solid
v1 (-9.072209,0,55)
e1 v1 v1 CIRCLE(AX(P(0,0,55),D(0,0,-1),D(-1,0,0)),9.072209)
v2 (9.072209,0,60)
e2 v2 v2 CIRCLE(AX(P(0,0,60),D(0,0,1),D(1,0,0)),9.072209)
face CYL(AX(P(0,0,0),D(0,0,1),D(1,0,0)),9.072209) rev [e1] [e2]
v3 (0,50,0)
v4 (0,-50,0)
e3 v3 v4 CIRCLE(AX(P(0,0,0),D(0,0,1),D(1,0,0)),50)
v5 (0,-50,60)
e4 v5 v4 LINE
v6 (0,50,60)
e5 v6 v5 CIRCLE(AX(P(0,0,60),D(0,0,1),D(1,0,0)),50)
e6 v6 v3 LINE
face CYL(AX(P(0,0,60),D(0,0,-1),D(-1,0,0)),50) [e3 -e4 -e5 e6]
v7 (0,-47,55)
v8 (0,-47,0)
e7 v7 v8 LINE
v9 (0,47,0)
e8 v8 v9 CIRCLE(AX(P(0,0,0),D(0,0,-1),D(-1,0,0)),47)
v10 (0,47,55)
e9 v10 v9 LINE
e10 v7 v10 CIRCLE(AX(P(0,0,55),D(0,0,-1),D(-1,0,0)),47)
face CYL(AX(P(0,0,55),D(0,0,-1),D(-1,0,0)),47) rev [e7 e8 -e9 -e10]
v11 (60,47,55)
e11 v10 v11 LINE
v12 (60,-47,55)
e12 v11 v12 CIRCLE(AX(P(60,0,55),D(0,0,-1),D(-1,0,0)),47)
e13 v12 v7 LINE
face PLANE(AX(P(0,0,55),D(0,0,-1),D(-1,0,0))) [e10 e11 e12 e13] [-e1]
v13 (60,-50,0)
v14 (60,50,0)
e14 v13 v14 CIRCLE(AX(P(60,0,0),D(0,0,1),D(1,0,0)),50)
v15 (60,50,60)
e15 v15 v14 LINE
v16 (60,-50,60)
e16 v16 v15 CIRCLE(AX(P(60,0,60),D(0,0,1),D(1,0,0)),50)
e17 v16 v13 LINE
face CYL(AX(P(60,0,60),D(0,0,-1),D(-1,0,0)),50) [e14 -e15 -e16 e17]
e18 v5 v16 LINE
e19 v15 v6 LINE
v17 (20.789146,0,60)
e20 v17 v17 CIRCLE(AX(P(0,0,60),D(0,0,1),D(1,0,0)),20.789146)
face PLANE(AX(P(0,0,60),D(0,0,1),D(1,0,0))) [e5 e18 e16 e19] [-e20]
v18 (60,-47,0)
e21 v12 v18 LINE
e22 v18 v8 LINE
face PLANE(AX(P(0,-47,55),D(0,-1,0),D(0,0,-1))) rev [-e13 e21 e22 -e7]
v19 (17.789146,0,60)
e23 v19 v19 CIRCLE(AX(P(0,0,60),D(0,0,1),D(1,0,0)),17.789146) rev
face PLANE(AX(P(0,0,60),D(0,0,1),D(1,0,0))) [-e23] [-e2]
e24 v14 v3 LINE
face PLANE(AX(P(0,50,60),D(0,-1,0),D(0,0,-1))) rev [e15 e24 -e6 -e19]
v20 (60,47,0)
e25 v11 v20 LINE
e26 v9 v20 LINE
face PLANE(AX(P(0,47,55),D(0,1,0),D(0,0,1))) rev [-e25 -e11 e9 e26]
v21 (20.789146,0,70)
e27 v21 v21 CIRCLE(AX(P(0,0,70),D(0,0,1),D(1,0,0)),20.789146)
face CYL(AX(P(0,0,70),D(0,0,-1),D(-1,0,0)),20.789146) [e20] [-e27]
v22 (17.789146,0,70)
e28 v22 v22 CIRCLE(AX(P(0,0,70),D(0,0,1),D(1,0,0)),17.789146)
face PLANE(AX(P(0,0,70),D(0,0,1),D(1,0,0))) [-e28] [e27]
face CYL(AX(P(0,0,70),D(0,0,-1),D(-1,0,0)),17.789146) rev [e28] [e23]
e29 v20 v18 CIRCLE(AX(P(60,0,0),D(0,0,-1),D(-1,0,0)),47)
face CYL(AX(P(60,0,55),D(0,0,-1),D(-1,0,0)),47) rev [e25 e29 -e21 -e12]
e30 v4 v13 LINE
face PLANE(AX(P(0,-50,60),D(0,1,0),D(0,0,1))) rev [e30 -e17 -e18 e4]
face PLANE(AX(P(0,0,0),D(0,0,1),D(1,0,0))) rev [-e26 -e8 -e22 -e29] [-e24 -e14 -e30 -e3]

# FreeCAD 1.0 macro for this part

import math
import FreeCAD as App
import Part
import Sketcher

doc = App.newDocument("Part")
body = doc.addObject("PartDesign::Body", "Body")

# Sketch on XY plane
sketch1 = doc.addObject("Sketcher::SketchObject", "Sketch")
body.addObject(sketch1)
sketch1.AttachmentSupport = (doc.XY_Plane, [""])
sketch1.MapMode = "FlatFace"
sketch1.addGeometry([
    Part.LineSegment(App.Vector(60, 50, 0), App.Vector(0, 50, 0)),
    Part.ArcOfCircle(Part.Circle(App.Vector(0, 0, 0), App.Vector(0, 0, 1), 50), math.radians(90), math.radians(270)),
    Part.LineSegment(App.Vector(0, -50, 0), App.Vector(60, -50, 0)),
    Part.ArcOfCircle(Part.Circle(App.Vector(60, 0, 0), App.Vector(0, 0, 1), 50), math.radians(-90), math.radians(90)),
], False)
sketch1.addConstraint([
    Sketcher.Constraint("Tangent", 0, 2, 1, 1),
    Sketcher.Constraint("Tangent", 1, 2, 2, 1),
    Sketcher.Constraint("Tangent", 2, 2, 3, 1),
    Sketcher.Constraint("Tangent", 3, 2, 0, 1),
    Sketcher.Constraint("Horizontal", 0),
    Sketcher.Constraint("Horizontal", 2),
    Sketcher.Constraint("Coincident", 1, 3, -1, 1),
    Sketcher.Constraint("Radius", 1, 50.0),
    Sketcher.Constraint("DistanceX", 0, 2, 0, 1, 60.0),
])
pad1 = doc.addObject("PartDesign::Pad", "Pad")
body.addObject(pad1)
pad1.Profile = sketch1
pad1.Length = 60

# Sketch on XY plane
sketch2 = doc.addObject("Sketcher::SketchObject", "Sketch001")
body.addObject(sketch2)
sketch2.AttachmentSupport = (doc.XY_Plane, [""])
sketch2.MapMode = "FlatFace"
sketch2.addGeometry([
    Part.LineSegment(App.Vector(60, -47, 0), App.Vector(0, -47, 0)),
    Part.ArcOfCircle(Part.Circle(App.Vector(0, 0, 0), App.Vector(0, 0, 1), 47), math.radians(90), math.radians(270)),
    Part.LineSegment(App.Vector(0, 47, 0), App.Vector(60, 47, 0)),
    Part.ArcOfCircle(Part.Circle(App.Vector(60, 0, 0), App.Vector(0, 0, 1), 47), math.radians(-90), math.radians(90)),
], False)
sketch2.addConstraint([
    Sketcher.Constraint("Tangent", 0, 2, 1, 2),
    Sketcher.Constraint("Tangent", 1, 1, 2, 1),
    Sketcher.Constraint("Tangent", 2, 2, 3, 2),
    Sketcher.Constraint("Tangent", 3, 1, 0, 1),
    Sketcher.Constraint("Horizontal", 0),
    Sketcher.Constraint("Horizontal", 2),
    Sketcher.Constraint("Coincident", 1, 3, -1, 1),
    Sketcher.Constraint("Radius", 1, 47.0),
    Sketcher.Constraint("DistanceX", 0, 2, 0, 1, 60.0),
])
pocket1 = doc.addObject("PartDesign::Pocket", "Pocket")
body.addObject(pocket1)
pocket1.Profile = sketch2
pocket1.Length = 55
pocket1.Reversed = True

# Sketch on XY plane
sketch3 = doc.addObject("Sketcher::SketchObject", "Sketch002")
body.addObject(sketch3)
sketch3.AttachmentSupport = (doc.XY_Plane, [""])
sketch3.MapMode = "FlatFace"
sketch3.AttachmentOffset = App.Placement(App.Vector(0, 0, 60), App.Rotation())
sketch3.addGeometry([
    Part.Circle(App.Vector(0, 0, 0), App.Vector(0, 0, 1), 21),
    Part.Circle(App.Vector(0, 0, 0), App.Vector(0, 0, 1), 18),
], False)
sketch3.addConstraint([
    Sketcher.Constraint("Coincident", 0, 3, -1, 1),
    Sketcher.Constraint("Coincident", 1, 3, -1, 1),
    Sketcher.Constraint("Diameter", 0, 41.578291),
    Sketcher.Constraint("Diameter", 1, 35.578291),
])
pad2 = doc.addObject("PartDesign::Pad", "Pad001")
body.addObject(pad2)
pad2.Profile = sketch3
pad2.Length = 10

# Sketch on XY plane
sketch4 = doc.addObject("Sketcher::SketchObject", "Sketch003")
body.addObject(sketch4)
sketch4.AttachmentSupport = (doc.XY_Plane, [""])
sketch4.MapMode = "FlatFace"
sketch4.AttachmentOffset = App.Placement(App.Vector(0, 0, 60), App.Rotation())
sketch4.addGeometry(Part.Circle(App.Vector(0, 0, 0), App.Vector(0, 0, 1), 9), False)
sketch4.addConstraint([
    Sketcher.Constraint("Coincident", 0, 3, -1, 1),
    Sketcher.Constraint("Diameter", 0, 18.144417),
])
pocket2 = doc.addObject("PartDesign::Pocket", "Pocket001")
body.addObject(pocket2)
pocket2.Profile = sketch4
pocket2.Type = "ThroughAll"

doc.recompute()
